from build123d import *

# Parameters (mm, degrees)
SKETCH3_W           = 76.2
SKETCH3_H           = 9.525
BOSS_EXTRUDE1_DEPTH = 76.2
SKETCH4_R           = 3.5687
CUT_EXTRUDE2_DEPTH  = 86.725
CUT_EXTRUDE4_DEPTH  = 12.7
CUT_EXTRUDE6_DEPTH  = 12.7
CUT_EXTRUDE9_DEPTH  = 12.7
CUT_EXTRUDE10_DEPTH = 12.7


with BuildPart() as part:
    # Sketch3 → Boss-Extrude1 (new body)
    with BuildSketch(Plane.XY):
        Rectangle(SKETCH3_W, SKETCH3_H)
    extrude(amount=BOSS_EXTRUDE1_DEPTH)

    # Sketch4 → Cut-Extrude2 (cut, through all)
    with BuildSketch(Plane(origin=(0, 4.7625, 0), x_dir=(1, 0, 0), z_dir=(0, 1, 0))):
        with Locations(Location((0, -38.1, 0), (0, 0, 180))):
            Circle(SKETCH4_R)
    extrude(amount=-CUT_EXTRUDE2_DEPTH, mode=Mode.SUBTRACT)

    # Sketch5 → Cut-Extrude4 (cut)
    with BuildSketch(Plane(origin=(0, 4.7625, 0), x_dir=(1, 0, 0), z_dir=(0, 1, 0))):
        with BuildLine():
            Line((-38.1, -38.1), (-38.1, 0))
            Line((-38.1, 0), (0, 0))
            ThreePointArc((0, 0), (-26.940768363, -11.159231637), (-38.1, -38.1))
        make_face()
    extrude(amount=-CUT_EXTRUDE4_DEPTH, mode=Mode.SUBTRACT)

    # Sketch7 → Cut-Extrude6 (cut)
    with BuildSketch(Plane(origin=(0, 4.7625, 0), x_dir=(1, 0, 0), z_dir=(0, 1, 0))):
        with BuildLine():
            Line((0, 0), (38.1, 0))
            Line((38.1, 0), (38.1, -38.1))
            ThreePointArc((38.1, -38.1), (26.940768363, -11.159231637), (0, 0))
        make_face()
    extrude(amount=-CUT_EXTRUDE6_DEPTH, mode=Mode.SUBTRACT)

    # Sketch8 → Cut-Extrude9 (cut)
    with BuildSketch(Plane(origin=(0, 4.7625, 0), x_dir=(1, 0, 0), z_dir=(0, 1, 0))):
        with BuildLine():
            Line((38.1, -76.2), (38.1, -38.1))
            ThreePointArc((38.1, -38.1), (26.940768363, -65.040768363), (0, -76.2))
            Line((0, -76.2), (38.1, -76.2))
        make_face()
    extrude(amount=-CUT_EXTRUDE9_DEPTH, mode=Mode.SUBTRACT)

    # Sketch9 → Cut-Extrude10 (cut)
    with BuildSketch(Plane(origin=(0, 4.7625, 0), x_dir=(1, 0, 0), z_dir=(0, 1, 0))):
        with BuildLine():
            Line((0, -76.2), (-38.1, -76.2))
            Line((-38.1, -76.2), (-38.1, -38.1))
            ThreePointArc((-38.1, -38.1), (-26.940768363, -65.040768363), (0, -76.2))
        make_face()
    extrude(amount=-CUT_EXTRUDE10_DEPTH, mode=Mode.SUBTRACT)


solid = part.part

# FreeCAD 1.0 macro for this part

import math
import FreeCAD as App
import Part
import Sketcher
Q = App.Units.Quantity

doc = App.newDocument("Part")
body = doc.addObject("PartDesign::Body", "Body")

sketch1 = body.newObject("Sketcher::SketchObject", "Sketch")
sketch1.AttachmentSupport = (doc.getObject("XY_Plane"), [""])
sketch1.MapMode = "FlatFace"
sketch1.addGeometry([
    Part.LineSegment(App.Vector(-38, 5, 0), App.Vector(-38, -5, 0)),
    Part.LineSegment(App.Vector(-38, -5, 0), App.Vector(38, -5, 0)),
    Part.LineSegment(App.Vector(38, -5, 0), App.Vector(38, 5, 0)),
    Part.LineSegment(App.Vector(38, 5, 0), App.Vector(-38, 5, 0)),
], False)
sketch1.addConstraint([
    Sketcher.Constraint("Coincident", 0, 2, 1, 1),
    Sketcher.Constraint("Coincident", 1, 2, 2, 1),
    Sketcher.Constraint("Coincident", 2, 2, 3, 1),
    Sketcher.Constraint("Coincident", 3, 2, 0, 1),
    Sketcher.Constraint("Vertical", 0),
    Sketcher.Constraint("Horizontal", 1),
    Sketcher.Constraint("Vertical", 2),
    Sketcher.Constraint("Horizontal", 3),
    Sketcher.Constraint("Symmetric", 0, 2, 2, 2, -1, 1),
    Sketcher.Constraint("DistanceX", 1, 1, 1, 2, Q("3 in")),
    Sketcher.Constraint("DistanceY", 0, 2, 0, 1, Q("0.375 in")),
])
pad1 = body.newObject("PartDesign::Pad", "Pad")
pad1.Profile = sketch1
pad1.Length = Q("3 in")

sketch2 = body.newObject("Sketcher::SketchObject", "Sketch001")
sketch2.AttachmentSupport = (doc.getObject("XZ_Plane"), [""])
sketch2.MapMode = "FlatFace"
sketch2.AttachmentOffset = App.Placement(App.Vector(0, 0, -0.1875 * 25.4), App.Rotation())
sketch2.addGeometry(Part.Circle(App.Vector(0, 38.1, 0), App.Vector(0, 0, 1), 3.6), False)
sketch2.addConstraint([
    Sketcher.Constraint("PointOnObject", 0, 3, -2),
    Sketcher.Constraint("Diameter", 0, Q("0.281 in")),
    Sketcher.Constraint("DistanceY", -1, 1, 0, 3, Q("1.5 in")),
])
pocket1 = body.newObject("PartDesign::Pocket", "Pocket")
pocket1.Profile = sketch2
pocket1.Type = "ThroughAll"
pocket1.Reversed = True

sketch3 = body.newObject("Sketcher::SketchObject", "Sketch002")
sketch3.AttachmentSupport = (doc.getObject("XZ_Plane"), [""])
sketch3.MapMode = "FlatFace"
sketch3.AttachmentOffset = App.Placement(App.Vector(0, 0, -0.1875 * 25.4), App.Rotation())
sketch3.addGeometry([
    Part.LineSegment(App.Vector(-38, 0, 0), App.Vector(-38, 38, 0)),
    Part.ArcOfCircle(Part.Circle(App.Vector(0, 38, 0), App.Vector(0, 0, 1), 38), math.radians(-180), math.radians(-90)),
    Part.LineSegment(App.Vector(0, 0, 0), App.Vector(-38, 0, 0)),
], False)
sketch3.addConstraint([
    Sketcher.Constraint("Tangent", 0, 2, 1, 1),
    Sketcher.Constraint("Tangent", 1, 2, 2, 1),
    Sketcher.Constraint("Coincident", 2, 2, 0, 1),
    Sketcher.Constraint("Vertical", 0),
    Sketcher.Constraint("Horizontal", 2),
    Sketcher.Constraint("Coincident", 1, 2, -1, 1),
    Sketcher.Constraint("Radius", 1, Q("1.5 in")),
])
pocket2 = body.newObject("PartDesign::Pocket", "Pocket001")
pocket2.Profile = sketch3
pocket2.Length = Q("0.5 in")
pocket2.Reversed = True

sketch4 = body.newObject("Sketcher::SketchObject", "Sketch003")
sketch4.AttachmentSupport = (doc.getObject("XZ_Plane"), [""])
sketch4.MapMode = "FlatFace"
sketch4.AttachmentOffset = App.Placement(App.Vector(0, 0, -0.1875 * 25.4), App.Rotation())
sketch4.addGeometry([
    Part.LineSegment(App.Vector(38, 0, 0), App.Vector(0, 0, 0)),
    Part.ArcOfCircle(Part.Circle(App.Vector(0, 38, 0), App.Vector(0, 0, 1), 38), math.radians(-90), math.radians(0)),
    Part.LineSegment(App.Vector(38, 38, 0), App.Vector(38, 0, 0)),
], False)
sketch4.addConstraint([
    Sketcher.Constraint("Tangent", 0, 2, 1, 1),
    Sketcher.Constraint("Tangent", 1, 2, 2, 1),
    Sketcher.Constraint("Coincident", 2, 2, 0, 1),
    Sketcher.Constraint("Horizontal", 0),
    Sketcher.Constraint("Vertical", 2),
    Sketcher.Constraint("Coincident", 0, 2, -1, 1),
    Sketcher.Constraint("Radius", 1, Q("1.5 in")),
])
pocket3 = body.newObject("PartDesign::Pocket", "Pocket002")
pocket3.Profile = sketch4
pocket3.Length = Q("0.5 in")
pocket3.Reversed = True

sketch5 = body.newObject("Sketcher::SketchObject", "Sketch004")
sketch5.AttachmentSupport = (doc.getObject("XZ_Plane"), [""])
sketch5.MapMode = "FlatFace"
sketch5.AttachmentOffset = App.Placement(App.Vector(0, 0, -0.1875 * 25.4), App.Rotation())
sketch5.addGeometry([
    Part.LineSegment(App.Vector(38, 76, 0), App.Vector(38, 38, 0)),
    Part.ArcOfCircle(Part.Circle(App.Vector(0, 38, 0), App.Vector(0, 0, 1), 38), math.radians(0), math.radians(90)),
    Part.LineSegment(App.Vector(0, 76, 0), App.Vector(38, 76, 0)),
], False)
sketch5.addConstraint([
    Sketcher.Constraint("Tangent", 0, 2, 1, 1),
    Sketcher.Constraint("Tangent", 1, 2, 2, 1),
    Sketcher.Constraint("Coincident", 2, 2, 0, 1),
    Sketcher.Constraint("Vertical", 0),
    Sketcher.Constraint("Horizontal", 2),
    Sketcher.Constraint("PointOnObject", 1, 3, -2),
    Sketcher.Constraint("Radius", 1, Q("1.5 in")),
    Sketcher.Constraint("DistanceY", -1, 1, 1, 2, Q("3 in")),
])
pocket4 = body.newObject("PartDesign::Pocket", "Pocket003")
pocket4.Profile = sketch5
pocket4.Length = Q("0.5 in")
pocket4.Reversed = True

sketch6 = body.newObject("Sketcher::SketchObject", "Sketch005")
sketch6.AttachmentSupport = (doc.getObject("XZ_Plane"), [""])
sketch6.MapMode = "FlatFace"
sketch6.AttachmentOffset = App.Placement(App.Vector(0, 0, -0.1875 * 25.4), App.Rotation())
sketch6.addGeometry([
    Part.LineSegment(App.Vector(-38, 76, 0), App.Vector(0, 76, 0)),
    Part.ArcOfCircle(Part.Circle(App.Vector(0, 38, 0), App.Vector(0, 0, 1), 38), math.radians(90), math.radians(180)),
    Part.LineSegment(App.Vector(-38, 38, 0), App.Vector(-38, 76, 0)),
], False)
sketch6.addConstraint([
    Sketcher.Constraint("Tangent", 0, 2, 1, 1),
    Sketcher.Constraint("Tangent", 1, 2, 2, 1),
    Sketcher.Constraint("Coincident", 2, 2, 0, 1),
    Sketcher.Constraint("Horizontal", 0),
    Sketcher.Constraint("Vertical", 2),
    Sketcher.Constraint("PointOnObject", 1, 3, -2),
    Sketcher.Constraint("Radius", 1, Q("1.5 in")),
    Sketcher.Constraint("DistanceY", -1, 1, 0, 2, Q("3 in")),
])
pocket5 = body.newObject("PartDesign::Pocket", "Pocket004")
pocket5.Profile = sketch6
pocket5.Length = Q("0.5 in")
pocket5.Reversed = True

doc.recompute()
